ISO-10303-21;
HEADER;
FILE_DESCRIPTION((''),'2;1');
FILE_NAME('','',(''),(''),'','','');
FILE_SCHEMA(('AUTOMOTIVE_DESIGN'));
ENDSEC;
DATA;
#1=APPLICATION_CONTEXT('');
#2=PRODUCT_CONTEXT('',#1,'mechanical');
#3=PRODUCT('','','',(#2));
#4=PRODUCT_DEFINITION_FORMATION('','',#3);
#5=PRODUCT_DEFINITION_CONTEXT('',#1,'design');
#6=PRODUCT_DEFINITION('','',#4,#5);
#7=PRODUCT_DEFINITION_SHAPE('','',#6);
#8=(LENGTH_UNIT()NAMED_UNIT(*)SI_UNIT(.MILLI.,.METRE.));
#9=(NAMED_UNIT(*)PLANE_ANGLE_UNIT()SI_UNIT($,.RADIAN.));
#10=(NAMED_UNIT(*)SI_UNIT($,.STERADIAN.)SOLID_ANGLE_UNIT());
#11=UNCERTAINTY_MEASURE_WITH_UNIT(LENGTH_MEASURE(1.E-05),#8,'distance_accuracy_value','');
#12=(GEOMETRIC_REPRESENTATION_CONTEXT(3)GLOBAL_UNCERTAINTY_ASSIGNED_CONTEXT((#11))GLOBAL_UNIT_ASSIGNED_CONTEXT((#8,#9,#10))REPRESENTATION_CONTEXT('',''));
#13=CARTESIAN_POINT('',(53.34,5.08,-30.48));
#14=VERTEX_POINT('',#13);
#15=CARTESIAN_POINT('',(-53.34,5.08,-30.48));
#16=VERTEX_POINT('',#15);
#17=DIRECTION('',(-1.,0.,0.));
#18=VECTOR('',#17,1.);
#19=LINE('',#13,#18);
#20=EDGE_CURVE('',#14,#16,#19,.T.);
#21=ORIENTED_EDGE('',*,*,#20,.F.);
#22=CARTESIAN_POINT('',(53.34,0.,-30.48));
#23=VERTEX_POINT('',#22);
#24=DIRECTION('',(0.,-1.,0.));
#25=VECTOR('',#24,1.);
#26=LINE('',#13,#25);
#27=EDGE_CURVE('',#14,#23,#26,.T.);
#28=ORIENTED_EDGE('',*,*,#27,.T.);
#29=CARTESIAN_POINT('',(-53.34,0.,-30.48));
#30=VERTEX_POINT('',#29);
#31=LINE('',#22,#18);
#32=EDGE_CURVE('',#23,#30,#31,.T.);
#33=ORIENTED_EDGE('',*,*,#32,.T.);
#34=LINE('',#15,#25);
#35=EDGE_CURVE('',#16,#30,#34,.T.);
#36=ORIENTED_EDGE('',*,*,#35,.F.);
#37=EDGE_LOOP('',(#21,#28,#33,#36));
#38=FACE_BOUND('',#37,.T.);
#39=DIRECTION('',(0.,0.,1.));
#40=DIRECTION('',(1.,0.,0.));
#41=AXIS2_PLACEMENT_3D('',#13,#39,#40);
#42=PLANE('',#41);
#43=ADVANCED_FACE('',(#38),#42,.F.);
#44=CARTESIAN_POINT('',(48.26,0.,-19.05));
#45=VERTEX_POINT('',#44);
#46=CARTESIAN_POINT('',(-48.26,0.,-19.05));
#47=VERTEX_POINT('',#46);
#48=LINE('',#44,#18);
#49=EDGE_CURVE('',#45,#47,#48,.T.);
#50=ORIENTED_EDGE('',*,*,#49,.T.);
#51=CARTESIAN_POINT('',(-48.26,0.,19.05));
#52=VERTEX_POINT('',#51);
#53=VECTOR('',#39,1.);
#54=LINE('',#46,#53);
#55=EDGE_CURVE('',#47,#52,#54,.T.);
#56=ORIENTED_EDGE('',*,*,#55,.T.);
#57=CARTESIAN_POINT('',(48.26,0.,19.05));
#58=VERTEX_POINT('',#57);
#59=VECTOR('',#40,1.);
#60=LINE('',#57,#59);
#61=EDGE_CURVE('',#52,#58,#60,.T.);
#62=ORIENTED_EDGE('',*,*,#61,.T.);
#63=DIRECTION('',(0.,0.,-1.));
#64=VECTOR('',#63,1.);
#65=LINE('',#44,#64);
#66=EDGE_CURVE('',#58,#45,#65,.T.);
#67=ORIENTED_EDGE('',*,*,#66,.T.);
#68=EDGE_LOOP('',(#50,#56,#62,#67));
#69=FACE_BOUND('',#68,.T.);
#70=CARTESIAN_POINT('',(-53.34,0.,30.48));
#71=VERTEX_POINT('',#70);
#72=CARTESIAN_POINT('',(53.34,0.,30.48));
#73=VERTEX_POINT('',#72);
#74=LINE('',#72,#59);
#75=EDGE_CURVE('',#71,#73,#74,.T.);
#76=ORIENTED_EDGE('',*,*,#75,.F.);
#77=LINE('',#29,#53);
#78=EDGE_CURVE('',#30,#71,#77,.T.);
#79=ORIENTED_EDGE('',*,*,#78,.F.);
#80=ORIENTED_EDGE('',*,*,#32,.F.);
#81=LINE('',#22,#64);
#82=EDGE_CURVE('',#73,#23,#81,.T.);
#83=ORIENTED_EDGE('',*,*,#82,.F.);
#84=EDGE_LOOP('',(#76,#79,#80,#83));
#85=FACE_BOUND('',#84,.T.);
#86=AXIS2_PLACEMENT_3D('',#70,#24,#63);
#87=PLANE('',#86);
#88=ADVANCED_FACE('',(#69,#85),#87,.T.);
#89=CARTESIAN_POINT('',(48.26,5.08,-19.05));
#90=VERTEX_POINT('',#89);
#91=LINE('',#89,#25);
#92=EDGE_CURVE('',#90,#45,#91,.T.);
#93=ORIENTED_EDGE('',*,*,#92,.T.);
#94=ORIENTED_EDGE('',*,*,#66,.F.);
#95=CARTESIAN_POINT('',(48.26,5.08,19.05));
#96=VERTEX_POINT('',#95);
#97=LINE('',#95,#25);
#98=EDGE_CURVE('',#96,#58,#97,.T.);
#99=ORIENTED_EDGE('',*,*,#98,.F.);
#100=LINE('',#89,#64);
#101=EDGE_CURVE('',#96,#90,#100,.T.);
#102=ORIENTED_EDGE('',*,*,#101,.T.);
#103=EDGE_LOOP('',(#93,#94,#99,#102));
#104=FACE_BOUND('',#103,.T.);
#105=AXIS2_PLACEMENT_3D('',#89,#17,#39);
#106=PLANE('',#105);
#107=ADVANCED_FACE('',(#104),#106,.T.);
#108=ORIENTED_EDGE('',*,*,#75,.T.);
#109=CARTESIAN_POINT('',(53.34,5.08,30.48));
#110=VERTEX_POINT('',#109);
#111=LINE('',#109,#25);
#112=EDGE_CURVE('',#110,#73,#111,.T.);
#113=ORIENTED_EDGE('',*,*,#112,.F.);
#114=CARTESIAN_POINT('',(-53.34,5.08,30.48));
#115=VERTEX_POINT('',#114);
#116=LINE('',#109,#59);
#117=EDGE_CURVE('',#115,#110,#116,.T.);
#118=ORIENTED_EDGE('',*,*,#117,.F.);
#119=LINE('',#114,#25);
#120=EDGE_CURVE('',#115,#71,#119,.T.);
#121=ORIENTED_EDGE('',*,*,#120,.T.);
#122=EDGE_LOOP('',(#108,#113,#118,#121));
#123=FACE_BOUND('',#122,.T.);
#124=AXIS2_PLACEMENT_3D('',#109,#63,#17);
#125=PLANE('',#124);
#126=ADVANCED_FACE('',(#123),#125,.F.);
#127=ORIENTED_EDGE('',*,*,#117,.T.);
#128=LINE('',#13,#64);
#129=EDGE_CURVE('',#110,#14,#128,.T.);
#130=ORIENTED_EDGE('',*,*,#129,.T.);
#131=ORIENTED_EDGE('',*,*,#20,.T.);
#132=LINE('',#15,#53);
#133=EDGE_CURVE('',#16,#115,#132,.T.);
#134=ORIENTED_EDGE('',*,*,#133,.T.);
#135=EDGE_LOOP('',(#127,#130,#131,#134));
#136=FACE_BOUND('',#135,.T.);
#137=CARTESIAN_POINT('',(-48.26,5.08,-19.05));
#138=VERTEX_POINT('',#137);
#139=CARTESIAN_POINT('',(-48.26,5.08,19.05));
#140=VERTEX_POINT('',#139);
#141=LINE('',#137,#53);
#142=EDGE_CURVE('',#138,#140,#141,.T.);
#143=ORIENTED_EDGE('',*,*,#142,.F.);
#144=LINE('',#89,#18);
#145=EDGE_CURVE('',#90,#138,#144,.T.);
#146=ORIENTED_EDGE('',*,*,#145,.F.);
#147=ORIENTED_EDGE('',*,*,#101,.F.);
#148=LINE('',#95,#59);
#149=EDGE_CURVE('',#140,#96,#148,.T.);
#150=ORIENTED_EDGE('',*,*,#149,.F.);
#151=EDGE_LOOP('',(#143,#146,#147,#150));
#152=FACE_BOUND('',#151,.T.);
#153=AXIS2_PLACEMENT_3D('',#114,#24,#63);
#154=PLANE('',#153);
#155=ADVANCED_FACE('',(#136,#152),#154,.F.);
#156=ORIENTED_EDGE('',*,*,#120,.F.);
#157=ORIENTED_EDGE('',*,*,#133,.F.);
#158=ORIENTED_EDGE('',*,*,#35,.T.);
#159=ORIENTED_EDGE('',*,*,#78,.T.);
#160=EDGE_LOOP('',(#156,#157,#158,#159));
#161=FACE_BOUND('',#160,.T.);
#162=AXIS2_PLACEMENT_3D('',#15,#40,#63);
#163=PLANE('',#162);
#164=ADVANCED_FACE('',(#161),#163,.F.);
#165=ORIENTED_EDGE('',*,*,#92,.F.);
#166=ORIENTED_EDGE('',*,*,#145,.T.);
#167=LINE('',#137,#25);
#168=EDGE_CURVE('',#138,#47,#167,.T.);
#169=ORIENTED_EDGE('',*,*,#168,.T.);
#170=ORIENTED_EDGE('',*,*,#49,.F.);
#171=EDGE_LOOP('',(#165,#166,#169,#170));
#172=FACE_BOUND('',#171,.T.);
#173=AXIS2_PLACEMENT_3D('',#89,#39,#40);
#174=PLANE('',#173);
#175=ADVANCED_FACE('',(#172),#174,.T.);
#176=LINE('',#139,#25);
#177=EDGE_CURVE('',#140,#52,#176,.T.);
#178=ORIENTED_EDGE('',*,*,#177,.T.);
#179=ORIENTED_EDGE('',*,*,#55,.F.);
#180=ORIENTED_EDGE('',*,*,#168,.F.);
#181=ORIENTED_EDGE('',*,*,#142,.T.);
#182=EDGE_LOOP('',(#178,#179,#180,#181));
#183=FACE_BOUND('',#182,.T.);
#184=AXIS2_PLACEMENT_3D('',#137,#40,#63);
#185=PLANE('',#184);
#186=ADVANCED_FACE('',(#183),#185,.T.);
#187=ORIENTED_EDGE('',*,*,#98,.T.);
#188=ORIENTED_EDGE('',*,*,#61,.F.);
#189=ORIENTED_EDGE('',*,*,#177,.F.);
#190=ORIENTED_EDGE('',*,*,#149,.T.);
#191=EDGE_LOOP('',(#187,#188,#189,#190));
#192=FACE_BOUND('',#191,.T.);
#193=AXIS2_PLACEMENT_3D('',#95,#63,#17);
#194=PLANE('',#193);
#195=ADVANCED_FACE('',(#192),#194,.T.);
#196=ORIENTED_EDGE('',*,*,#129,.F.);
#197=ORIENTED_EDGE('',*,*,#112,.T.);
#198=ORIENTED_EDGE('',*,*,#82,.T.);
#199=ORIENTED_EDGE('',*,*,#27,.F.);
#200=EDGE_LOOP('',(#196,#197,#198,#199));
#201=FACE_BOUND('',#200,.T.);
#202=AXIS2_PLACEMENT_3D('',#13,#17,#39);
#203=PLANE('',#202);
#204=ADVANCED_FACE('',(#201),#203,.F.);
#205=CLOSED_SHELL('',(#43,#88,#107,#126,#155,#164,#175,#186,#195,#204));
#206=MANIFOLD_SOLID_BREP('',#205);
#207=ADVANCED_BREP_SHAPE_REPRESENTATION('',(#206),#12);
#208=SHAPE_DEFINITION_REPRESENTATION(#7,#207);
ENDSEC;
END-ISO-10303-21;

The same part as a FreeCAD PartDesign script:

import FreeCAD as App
import Part
import Sketcher

V = App.Vector
Q = App.Units.Quantity


def add_polygon(sketch, points):
    """Adds a closed chain of lines whose ends are joined by coincident constraints."""
    first, n = sketch.GeometryCount, len(points)
    for a, b in zip(points, points[1:] + points[:1]):
        sketch.addGeometry(Part.LineSegment(App.Vector(*a, 0), App.Vector(*b, 0)), False)
    for i in range(n):
        sketch.addConstraint(Sketcher.Constraint("Coincident", first + i, 2, first + (i + 1) % n, 1))

doc = App.newDocument("Part")
params = doc.addObject("Spreadsheet::Sheet", "Params")
for row, (alias, value) in enumerate([
    ("sketch1_width", "4.2 in"),
    ("sketch1_width2", "3.8 in"),
    ("sketch1_height", "2.4 in"),
    ("sketch1_height2", "1.5 in"),
    ("pad1_length", "0.2 in"),
], start=1):
    params.set(f"A{row}", alias)
    params.set(f"B{row}", "=" + value)
    params.setAlias(f"B{row}", alias)

body = doc.addObject("PartDesign::Body", "Body")

# Sketch on XZ plane
sketch1 = body.newObject("Sketcher::SketchObject", "Sketch")
sketch1.AttachmentSupport = (doc.getObject("XZ_Plane"), [""])
sketch1.MapMode = "FlatFace"
add_polygon(sketch1, [(-53, -30), (-53, 30), (53, 30), (53, -30)])  # lines 0-3
add_polygon(sketch1, [(48, 19), (-48, 19), (-48, -19), (48, -19)])  # lines 4-7
sketch1.addConstraint([
    Sketcher.Constraint("Vertical", 0),
    Sketcher.Constraint("Horizontal", 1),
    Sketcher.Constraint("Vertical", 2),
    Sketcher.Constraint("Horizontal", 3),
    Sketcher.Constraint("Horizontal", 4),
    Sketcher.Constraint("Vertical", 5),
    Sketcher.Constraint("Horizontal", 6),
    Sketcher.Constraint("Vertical", 7),
    Sketcher.Constraint("Symmetric", 0, 2, 2, 2, -1, 1),
    Sketcher.Constraint("Symmetric", 4, 2, 6, 2, -1, 1),
    Sketcher.Constraint("DistanceX", 1, 1, 1, 2, Q("4.2 in")),
    Sketcher.Constraint("DistanceX", 4, 2, 4, 1, Q("3.8 in")),
    Sketcher.Constraint("DistanceY", 0, 1, 0, 2, Q("2.4 in")),
    Sketcher.Constraint("DistanceY", 5, 2, 5, 1, Q("1.5 in")),
])
sketch1.setExpression("Constraints[18]", "Params.sketch1_width")
sketch1.setExpression("Constraints[19]", "Params.sketch1_width2")
sketch1.setExpression("Constraints[20]", "Params.sketch1_height")
sketch1.setExpression("Constraints[21]", "Params.sketch1_height2")
pad1 = body.newObject("PartDesign::Pad", "Pad")
pad1.Profile = sketch1
pad1.setExpression("Length", "Params.pad1_length")
pad1.Reversed = True

doc.recompute()
